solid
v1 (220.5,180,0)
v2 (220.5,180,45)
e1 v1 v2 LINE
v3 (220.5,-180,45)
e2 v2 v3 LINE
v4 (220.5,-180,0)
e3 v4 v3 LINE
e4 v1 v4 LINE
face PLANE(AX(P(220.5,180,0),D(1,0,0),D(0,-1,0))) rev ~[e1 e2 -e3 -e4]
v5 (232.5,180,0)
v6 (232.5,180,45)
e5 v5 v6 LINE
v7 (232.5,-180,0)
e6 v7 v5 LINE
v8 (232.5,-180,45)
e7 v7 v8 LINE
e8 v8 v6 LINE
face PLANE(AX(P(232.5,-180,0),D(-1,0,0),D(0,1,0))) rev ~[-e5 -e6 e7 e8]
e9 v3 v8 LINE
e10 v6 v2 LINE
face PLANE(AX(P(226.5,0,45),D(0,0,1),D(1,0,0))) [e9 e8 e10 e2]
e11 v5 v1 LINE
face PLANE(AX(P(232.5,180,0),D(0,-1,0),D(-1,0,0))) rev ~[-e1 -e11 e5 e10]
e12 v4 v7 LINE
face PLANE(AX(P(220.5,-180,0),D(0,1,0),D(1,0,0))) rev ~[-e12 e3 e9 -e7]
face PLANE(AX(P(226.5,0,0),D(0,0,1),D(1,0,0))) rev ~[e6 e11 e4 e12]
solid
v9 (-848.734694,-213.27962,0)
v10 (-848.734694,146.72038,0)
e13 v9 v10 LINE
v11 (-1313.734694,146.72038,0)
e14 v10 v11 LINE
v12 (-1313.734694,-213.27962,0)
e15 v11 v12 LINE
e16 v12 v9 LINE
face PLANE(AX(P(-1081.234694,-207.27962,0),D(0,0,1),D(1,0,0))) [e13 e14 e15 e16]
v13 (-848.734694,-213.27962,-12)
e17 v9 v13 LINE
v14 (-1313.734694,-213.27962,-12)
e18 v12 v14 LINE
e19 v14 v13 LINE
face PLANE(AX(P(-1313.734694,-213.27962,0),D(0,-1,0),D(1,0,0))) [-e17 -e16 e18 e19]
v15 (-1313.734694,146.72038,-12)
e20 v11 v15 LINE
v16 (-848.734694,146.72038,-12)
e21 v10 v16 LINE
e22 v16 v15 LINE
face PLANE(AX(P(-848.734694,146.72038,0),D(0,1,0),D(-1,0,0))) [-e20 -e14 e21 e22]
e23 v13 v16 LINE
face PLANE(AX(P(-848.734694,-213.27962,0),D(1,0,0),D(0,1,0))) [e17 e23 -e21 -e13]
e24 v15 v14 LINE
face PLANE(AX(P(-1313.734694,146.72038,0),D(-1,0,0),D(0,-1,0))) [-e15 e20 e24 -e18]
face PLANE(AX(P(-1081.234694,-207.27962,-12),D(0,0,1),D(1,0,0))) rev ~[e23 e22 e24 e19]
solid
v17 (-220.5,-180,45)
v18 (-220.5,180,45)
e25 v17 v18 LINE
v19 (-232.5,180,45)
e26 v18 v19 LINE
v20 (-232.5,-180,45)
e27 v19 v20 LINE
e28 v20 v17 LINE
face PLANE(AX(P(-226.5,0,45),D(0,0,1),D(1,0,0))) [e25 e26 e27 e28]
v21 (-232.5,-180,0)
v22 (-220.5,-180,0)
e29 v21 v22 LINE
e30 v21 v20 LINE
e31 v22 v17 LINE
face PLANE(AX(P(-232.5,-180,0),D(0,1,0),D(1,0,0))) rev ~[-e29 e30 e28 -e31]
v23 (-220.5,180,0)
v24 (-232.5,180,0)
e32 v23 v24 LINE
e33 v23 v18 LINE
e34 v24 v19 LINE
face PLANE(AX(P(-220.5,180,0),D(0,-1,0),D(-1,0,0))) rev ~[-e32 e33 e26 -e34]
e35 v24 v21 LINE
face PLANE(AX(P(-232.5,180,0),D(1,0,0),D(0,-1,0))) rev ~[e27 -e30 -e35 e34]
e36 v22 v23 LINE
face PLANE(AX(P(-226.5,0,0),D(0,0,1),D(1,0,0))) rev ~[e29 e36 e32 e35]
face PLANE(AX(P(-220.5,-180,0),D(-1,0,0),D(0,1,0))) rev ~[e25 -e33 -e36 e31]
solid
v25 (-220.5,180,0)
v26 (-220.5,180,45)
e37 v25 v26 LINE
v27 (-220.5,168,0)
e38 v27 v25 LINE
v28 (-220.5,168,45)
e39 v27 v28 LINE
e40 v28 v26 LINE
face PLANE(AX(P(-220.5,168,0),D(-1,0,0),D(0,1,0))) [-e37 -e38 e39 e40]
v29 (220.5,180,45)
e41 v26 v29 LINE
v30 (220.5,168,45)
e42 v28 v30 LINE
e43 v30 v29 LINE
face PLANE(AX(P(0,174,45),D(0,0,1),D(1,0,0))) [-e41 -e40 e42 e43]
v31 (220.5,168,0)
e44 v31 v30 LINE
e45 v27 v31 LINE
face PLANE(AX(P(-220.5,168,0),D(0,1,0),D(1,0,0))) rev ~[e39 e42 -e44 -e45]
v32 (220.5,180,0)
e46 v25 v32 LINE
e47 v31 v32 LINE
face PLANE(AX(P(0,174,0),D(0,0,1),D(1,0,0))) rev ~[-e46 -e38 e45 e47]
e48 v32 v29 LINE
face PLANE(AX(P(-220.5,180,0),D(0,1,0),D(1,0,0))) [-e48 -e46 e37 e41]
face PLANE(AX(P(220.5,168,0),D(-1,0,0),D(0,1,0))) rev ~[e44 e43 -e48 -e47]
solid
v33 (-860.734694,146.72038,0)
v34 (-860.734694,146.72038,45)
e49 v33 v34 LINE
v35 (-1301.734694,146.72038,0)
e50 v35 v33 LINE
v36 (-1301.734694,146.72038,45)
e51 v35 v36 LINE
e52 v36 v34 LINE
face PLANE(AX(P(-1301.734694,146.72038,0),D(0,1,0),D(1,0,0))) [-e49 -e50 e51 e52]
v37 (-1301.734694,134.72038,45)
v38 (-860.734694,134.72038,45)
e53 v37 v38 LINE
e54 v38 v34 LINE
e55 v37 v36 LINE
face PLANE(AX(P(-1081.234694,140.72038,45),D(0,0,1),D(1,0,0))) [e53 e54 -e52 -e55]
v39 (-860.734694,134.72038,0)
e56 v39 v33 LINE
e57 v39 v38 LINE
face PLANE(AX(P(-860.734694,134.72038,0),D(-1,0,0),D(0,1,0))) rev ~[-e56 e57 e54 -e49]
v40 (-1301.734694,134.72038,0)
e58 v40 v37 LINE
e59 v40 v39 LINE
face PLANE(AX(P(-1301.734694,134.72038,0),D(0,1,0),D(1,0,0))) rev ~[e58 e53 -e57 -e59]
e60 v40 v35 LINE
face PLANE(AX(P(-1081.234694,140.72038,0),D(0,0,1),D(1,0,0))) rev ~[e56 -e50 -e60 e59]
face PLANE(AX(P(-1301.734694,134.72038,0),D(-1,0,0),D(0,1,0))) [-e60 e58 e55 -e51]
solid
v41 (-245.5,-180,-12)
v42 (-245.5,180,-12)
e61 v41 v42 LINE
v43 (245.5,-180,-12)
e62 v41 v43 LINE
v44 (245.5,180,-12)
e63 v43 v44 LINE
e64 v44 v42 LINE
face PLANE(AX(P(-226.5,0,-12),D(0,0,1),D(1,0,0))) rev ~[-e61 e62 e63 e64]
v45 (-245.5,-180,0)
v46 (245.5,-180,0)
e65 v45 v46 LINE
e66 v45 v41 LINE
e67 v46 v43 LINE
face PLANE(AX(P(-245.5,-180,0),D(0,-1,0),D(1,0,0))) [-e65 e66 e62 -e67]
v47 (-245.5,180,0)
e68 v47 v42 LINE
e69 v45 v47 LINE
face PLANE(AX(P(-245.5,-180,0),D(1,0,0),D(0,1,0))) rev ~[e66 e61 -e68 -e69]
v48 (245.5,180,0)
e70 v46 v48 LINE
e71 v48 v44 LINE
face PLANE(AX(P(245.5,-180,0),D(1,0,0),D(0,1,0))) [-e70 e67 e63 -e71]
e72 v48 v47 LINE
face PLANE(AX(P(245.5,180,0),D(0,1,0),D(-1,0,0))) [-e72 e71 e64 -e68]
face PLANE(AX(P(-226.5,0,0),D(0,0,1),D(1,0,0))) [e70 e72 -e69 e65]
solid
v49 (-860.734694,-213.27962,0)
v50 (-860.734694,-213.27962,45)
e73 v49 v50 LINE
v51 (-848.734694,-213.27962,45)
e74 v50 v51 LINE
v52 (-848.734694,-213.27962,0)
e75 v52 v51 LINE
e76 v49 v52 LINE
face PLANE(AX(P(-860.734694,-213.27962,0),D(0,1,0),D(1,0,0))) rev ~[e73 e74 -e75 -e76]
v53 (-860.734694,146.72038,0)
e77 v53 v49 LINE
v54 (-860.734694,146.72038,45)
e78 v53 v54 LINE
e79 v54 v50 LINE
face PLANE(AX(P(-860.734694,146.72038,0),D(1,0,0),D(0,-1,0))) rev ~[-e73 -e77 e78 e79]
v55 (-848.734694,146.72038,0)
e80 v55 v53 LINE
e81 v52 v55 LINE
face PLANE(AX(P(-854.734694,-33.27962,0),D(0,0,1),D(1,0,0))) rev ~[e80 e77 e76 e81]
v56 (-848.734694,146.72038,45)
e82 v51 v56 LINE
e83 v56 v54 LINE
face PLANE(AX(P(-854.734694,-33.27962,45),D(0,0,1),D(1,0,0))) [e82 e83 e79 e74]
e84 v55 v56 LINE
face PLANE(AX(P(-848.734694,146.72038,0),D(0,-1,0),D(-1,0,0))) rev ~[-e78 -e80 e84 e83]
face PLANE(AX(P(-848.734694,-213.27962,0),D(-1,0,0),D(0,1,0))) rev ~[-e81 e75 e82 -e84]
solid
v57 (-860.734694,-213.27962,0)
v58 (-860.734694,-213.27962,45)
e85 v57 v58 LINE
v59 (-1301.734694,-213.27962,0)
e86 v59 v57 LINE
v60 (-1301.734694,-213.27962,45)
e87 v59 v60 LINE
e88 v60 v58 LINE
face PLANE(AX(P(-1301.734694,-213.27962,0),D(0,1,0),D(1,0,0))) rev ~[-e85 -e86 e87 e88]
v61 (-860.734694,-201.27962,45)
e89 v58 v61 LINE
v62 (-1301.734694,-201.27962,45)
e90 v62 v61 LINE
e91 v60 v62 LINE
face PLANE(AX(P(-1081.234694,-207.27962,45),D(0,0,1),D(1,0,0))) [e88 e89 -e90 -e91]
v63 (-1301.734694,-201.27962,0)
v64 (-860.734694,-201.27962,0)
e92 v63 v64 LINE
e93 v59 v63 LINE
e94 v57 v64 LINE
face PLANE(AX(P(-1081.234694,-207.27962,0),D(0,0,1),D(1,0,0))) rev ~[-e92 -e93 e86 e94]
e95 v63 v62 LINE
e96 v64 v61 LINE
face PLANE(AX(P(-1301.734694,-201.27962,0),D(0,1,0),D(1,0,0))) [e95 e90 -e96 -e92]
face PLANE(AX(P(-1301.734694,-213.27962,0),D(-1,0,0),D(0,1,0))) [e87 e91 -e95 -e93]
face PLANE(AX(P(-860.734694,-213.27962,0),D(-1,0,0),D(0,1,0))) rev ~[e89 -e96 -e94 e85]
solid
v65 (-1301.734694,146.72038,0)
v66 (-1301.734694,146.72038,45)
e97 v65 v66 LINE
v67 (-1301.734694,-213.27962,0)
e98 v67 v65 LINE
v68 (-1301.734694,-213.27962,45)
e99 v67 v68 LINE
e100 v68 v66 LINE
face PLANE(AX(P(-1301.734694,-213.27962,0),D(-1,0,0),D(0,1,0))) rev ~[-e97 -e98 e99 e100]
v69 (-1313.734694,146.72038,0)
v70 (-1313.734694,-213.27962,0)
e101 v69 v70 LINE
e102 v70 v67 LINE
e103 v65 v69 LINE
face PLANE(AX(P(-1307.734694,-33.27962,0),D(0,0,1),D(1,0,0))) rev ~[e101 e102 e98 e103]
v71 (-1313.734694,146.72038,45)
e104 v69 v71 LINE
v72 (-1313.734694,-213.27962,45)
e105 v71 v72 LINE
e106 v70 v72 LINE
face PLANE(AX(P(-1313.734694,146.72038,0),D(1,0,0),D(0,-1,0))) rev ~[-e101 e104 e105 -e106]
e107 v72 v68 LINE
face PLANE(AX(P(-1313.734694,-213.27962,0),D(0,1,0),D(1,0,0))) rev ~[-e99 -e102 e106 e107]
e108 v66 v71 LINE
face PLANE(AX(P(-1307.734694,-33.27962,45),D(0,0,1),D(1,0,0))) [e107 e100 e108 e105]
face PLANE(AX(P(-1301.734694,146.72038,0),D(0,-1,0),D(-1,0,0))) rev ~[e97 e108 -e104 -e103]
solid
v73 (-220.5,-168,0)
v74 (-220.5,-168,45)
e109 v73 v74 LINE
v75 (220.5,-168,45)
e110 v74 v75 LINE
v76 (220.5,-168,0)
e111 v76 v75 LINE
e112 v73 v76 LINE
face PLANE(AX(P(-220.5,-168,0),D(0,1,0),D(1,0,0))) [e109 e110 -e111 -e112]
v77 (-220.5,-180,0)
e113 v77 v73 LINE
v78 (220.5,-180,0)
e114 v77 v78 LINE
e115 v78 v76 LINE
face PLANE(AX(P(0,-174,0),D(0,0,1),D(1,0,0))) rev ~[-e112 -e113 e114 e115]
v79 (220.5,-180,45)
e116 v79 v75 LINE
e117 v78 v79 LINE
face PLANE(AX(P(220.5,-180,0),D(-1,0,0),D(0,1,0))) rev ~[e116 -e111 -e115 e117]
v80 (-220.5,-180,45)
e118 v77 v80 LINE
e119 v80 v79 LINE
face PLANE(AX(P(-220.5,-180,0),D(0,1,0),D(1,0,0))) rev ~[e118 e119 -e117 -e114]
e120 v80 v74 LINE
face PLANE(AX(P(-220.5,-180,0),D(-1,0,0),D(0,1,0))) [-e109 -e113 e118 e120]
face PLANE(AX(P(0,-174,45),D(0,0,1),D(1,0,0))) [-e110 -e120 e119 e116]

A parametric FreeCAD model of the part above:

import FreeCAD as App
import Part
import Sketcher


def add_polygon(sketch, points):
    """Adds a closed chain of lines whose ends are joined by coincident constraints."""
    first, n = sketch.GeometryCount, len(points)
    for a, b in zip(points, points[1:] + points[:1]):
        sketch.addGeometry(Part.LineSegment(App.Vector(*a, 0), App.Vector(*b, 0)), False)
    for i in range(n):
        sketch.addConstraint(Sketcher.Constraint("Coincident", first + i, 2, first + (i + 1) % n, 1))

doc = App.newDocument("Part")
body = doc.addObject("PartDesign::Body", "Body")

# Sketch on XY plane
sketch1 = body.newObject("Sketcher::SketchObject", "Sketch")
sketch1.AttachmentSupport = (doc.getObject("XY_Plane"), [""])
sketch1.MapMode = "FlatFace"
add_polygon(sketch1, [(-245.5, 180), (-245.5, -180), (245.5, -180), (245.5, 180)])  # lines 0-3
sketch1.addConstraint(Sketcher.Constraint("Vertical", 0))
sketch1.addConstraint(Sketcher.Constraint("Horizontal", 1))
sketch1.addConstraint(Sketcher.Constraint("Vertical", 2))
sketch1.addConstraint(Sketcher.Constraint("Horizontal", 3))
sketch1.addConstraint(Sketcher.Constraint("Symmetric", 0, 2, 2, 2, -1, 1))
sketch1.addConstraint(Sketcher.Constraint("DistanceX", 1, 1, 1, 2, 491.0))
sketch1.addConstraint(Sketcher.Constraint("DistanceY", 0, 2, 0, 1, 360.0))
pad1 = body.newObject("PartDesign::Pad", "Pad")
pad1.Profile = sketch1
pad1.Length = 12
pad1.Reversed = True
body2 = doc.addObject("PartDesign::Body", "Body001")
body2.AllowCompound = True

# Sketch on XY plane
sketch2 = body2.newObject("Sketcher::SketchObject", "Sketch001")
sketch2.AttachmentSupport = (doc.getObject("XY_Plane001"), [""])
sketch2.MapMode = "FlatFace"
add_polygon(sketch2, [(-232.5, 180), (-232.5, -180), (-220.5, -180), (-220.5, 180)])  # lines 0-3
add_polygon(sketch2, [(220.5, -180), (232.5, -180), (232.5, 180), (220.5, 180)])  # lines 4-7
sketch2.addConstraint(Sketcher.Constraint("Vertical", 0))
sketch2.addConstraint(Sketcher.Constraint("Horizontal", 1))
sketch2.addConstraint(Sketcher.Constraint("Vertical", 2))
sketch2.addConstraint(Sketcher.Constraint("Horizontal", 3))
sketch2.addConstraint(Sketcher.Constraint("Horizontal", 4))
sketch2.addConstraint(Sketcher.Constraint("Vertical", 5))
sketch2.addConstraint(Sketcher.Constraint("Horizontal", 6))
sketch2.addConstraint(Sketcher.Constraint("Vertical", 7))
sketch2.addConstraint(Sketcher.Constraint("Symmetric", 3, 2, 4, 2, -1, 1))
sketch2.addConstraint(Sketcher.Constraint("Symmetric", 1, 2, 6, 2, -1, 1))
sketch2.addConstraint(Sketcher.Constraint("Horizontal", 1, 2, 4, 2))
sketch2.addConstraint(Sketcher.Constraint("DistanceX", 1, 1, 1, 2, 12.0))
sketch2.addConstraint(Sketcher.Constraint("DistanceY", 0, 2, 0, 1, 360.0))
sketch2.addConstraint(Sketcher.Constraint("DistanceX", 1, 2, 4, 2, 453.0))
pad2 = body2.newObject("PartDesign::Pad", "Pad001")
pad2.Profile = sketch2
pad2.Length = 45
body3 = doc.addObject("PartDesign::Body", "Body002")
body3.AllowCompound = True

# Sketch on XY plane
sketch3 = body3.newObject("Sketcher::SketchObject", "Sketch002")
sketch3.AttachmentSupport = (doc.getObject("XY_Plane002"), [""])
sketch3.MapMode = "FlatFace"
add_polygon(sketch3, [(-220.5, 180), (-220.5, 168), (220.5, 168), (220.5, 180)])  # lines 0-3
add_polygon(sketch3, [(-220.5, -168), (-220.5, -180), (220.5, -180), (220.5, -168)])  # lines 4-7
sketch3.addConstraint(Sketcher.Constraint("Vertical", 0))
sketch3.addConstraint(Sketcher.Constraint("Horizontal", 1))
sketch3.addConstraint(Sketcher.Constraint("Vertical", 2))
sketch3.addConstraint(Sketcher.Constraint("Horizontal", 3))
sketch3.addConstraint(Sketcher.Constraint("Vertical", 4))
sketch3.addConstraint(Sketcher.Constraint("Horizontal", 5))
sketch3.addConstraint(Sketcher.Constraint("Vertical", 6))
sketch3.addConstraint(Sketcher.Constraint("Horizontal", 7))
sketch3.addConstraint(Sketcher.Constraint("Symmetric", 2, 2, 4, 2, -1, 1))
sketch3.addConstraint(Sketcher.Constraint("Symmetric", 0, 2, 6, 2, -1, 1))
sketch3.addConstraint(Sketcher.Constraint("Vertical", 3, 2, 4, 2))
sketch3.addConstraint(Sketcher.Constraint("DistanceX", 1, 1, 1, 2, 441.0))
sketch3.addConstraint(Sketcher.Constraint("DistanceY", 0, 2, 0, 1, 12.0))
sketch3.addConstraint(Sketcher.Constraint("DistanceY", -1, 1, 0, 2, 168.0))
pad3 = body3.newObject("PartDesign::Pad", "Pad002")
pad3.Profile = sketch3
pad3.Length = 45
body4 = doc.addObject("PartDesign::Body", "Body003")

# Sketch on XY plane
sketch4 = body4.newObject("Sketcher::SketchObject", "Sketch003")
sketch4.AttachmentSupport = (doc.getObject("XY_Plane003"), [""])
sketch4.MapMode = "FlatFace"
add_polygon(sketch4, [(-1313.734694, 146.72038), (-1313.734694, -213.27962), (-848.734694, -213.27962), (-848.734694, 146.72038)])  # lines 0-3
sketch4.addConstraint(Sketcher.Constraint("Vertical", 0))
sketch4.addConstraint(Sketcher.Constraint("Horizontal", 1))
sketch4.addConstraint(Sketcher.Constraint("Vertical", 2))
sketch4.addConstraint(Sketcher.Constraint("Horizontal", 3))
sketch4.addConstraint(Sketcher.Constraint("DistanceX", 1, 1, 1, 2, 465.0))
sketch4.addConstraint(Sketcher.Constraint("DistanceY", 0, 2, 0, 1, 360.0))
sketch4.addConstraint(Sketcher.Constraint("DistanceY", 0, 2, -1, 1, 213.27962))
sketch4.addConstraint(Sketcher.Constraint("DistanceX", 0, 2, -1, 1, 1313.734694))
pad4 = body4.newObject("PartDesign::Pad", "Pad003")
pad4.Profile = sketch4
pad4.Length = 12
pad4.Reversed = True
body5 = doc.addObject("PartDesign::Body", "Body004")
body5.AllowCompound = True

# Sketch on XY plane
sketch5 = body5.newObject("Sketcher::SketchObject", "Sketch004")
sketch5.AttachmentSupport = (doc.getObject("XY_Plane004"), [""])
sketch5.MapMode = "FlatFace"
add_polygon(sketch5, [(-860.734694, -213.27962), (-848.734694, -213.27962), (-848.734694, 146.72038), (-860.734694, 146.72038)])  # lines 0-3
add_polygon(sketch5, [(-1313.734694, 146.72038), (-1313.734694, -213.27962), (-1301.734694, -213.27962), (-1301.734694, 146.72038)])  # lines 4-7
sketch5.addConstraint(Sketcher.Constraint("Horizontal", 0))
sketch5.addConstraint(Sketcher.Constraint("Vertical", 1))
sketch5.addConstraint(Sketcher.Constraint("Horizontal", 2))
sketch5.addConstraint(Sketcher.Constraint("Vertical", 3))
sketch5.addConstraint(Sketcher.Constraint("Vertical", 4))
sketch5.addConstraint(Sketcher.Constraint("Horizontal", 5))
sketch5.addConstraint(Sketcher.Constraint("Vertical", 6))
sketch5.addConstraint(Sketcher.Constraint("Horizontal", 7))
sketch5.addConstraint(Sketcher.Constraint("Horizontal", 3, 2, 4, 2))
sketch5.addConstraint(Sketcher.Constraint("Horizontal", 2, 2, 6, 2))
sketch5.addConstraint(Sketcher.Constraint("Equal", 2, 5))
sketch5.addConstraint(Sketcher.Constraint("DistanceX", 0, 1, 0, 2, 12.0))
sketch5.addConstraint(Sketcher.Constraint("DistanceY", 1, 1, 1, 2, 360.0))
sketch5.addConstraint(Sketcher.Constraint("DistanceX", 4, 2, 3, 2, 453.0))
sketch5.addConstraint(Sketcher.Constraint("DistanceY", 0, 2, -1, 1, 213.27962))
sketch5.addConstraint(Sketcher.Constraint("DistanceX", 0, 2, -1, 1, 848.734694))
pad5 = body5.newObject("PartDesign::Pad", "Pad004")
pad5.Profile = sketch5
pad5.Length = 45
body6 = doc.addObject("PartDesign::Body", "Body005")
body6.AllowCompound = True

# Sketch on XY plane
sketch6 = body6.newObject("Sketcher::SketchObject", "Sketch005")
sketch6.AttachmentSupport = (doc.getObject("XY_Plane005"), [""])
sketch6.MapMode = "FlatFace"
add_polygon(sketch6, [(-1301.734694, 146.72038), (-1301.734694, 134.72038), (-860.734694, 134.72038), (-860.734694, 146.72038)])  # lines 0-3
add_polygon(sketch6, [(-1301.734694, -201.27962), (-1301.734694, -213.27962), (-860.734694, -213.27962), (-860.734694, -201.27962)])  # lines 4-7
sketch6.addConstraint(Sketcher.Constraint("Vertical", 0))
sketch6.addConstraint(Sketcher.Constraint("Horizontal", 1))
sketch6.addConstraint(Sketcher.Constraint("Vertical", 2))
sketch6.addConstraint(Sketcher.Constraint("Horizontal", 3))
sketch6.addConstraint(Sketcher.Constraint("Vertical", 4))
sketch6.addConstraint(Sketcher.Constraint("Horizontal", 5))
sketch6.addConstraint(Sketcher.Constraint("Vertical", 6))
sketch6.addConstraint(Sketcher.Constraint("Horizontal", 7))
sketch6.addConstraint(Sketcher.Constraint("Vertical", 3, 2, 4, 2))
sketch6.addConstraint(Sketcher.Constraint("Vertical", 2, 2, 5, 2))
sketch6.addConstraint(Sketcher.Constraint("Equal", 2, 4))
sketch6.addConstraint(Sketcher.Constraint("DistanceX", 1, 1, 1, 2, 441.0))
sketch6.addConstraint(Sketcher.Constraint("DistanceY", 0, 2, 0, 1, 12.0))
sketch6.addConstraint(Sketcher.Constraint("DistanceY", 4, 2, 0, 2, 348.0))
sketch6.addConstraint(Sketcher.Constraint("DistanceY", -1, 1, 0, 2, 134.72038))
sketch6.addConstraint(Sketcher.Constraint("DistanceX", 0, 2, -1, 1, 1301.734694))
pad6 = body6.newObject("PartDesign::Pad", "Pad005")
pad6.Profile = sketch6
pad6.Length = 45

doc.recompute()
